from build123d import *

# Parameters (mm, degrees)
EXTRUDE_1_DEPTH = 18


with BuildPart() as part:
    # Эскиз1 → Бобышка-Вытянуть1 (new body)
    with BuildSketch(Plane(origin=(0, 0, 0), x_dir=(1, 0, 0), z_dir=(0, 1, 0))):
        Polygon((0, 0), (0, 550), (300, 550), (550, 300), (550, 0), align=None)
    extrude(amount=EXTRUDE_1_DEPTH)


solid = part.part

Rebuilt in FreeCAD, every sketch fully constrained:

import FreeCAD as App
import Part
import Sketcher

V = App.Vector
Q = App.Units.Quantity


def add_polygon(sketch, points):
    """Adds a closed chain of lines whose ends are joined by coincident constraints."""
    first, n = sketch.GeometryCount, len(points)
    for a, b in zip(points, points[1:] + points[:1]):
        sketch.addGeometry(Part.LineSegment(App.Vector(*a, 0), App.Vector(*b, 0)), False)
    for i in range(n):
        sketch.addConstraint(Sketcher.Constraint("Coincident", first + i, 2, first + (i + 1) % n, 1))

doc = App.newDocument("Part")
params = doc.addObject("Spreadsheet::Sheet", "Params")
for row, (alias, value) in enumerate([
    ("sketch1_width", "550 mm"),
    ("sketch1_width2", "300 mm"),
    ("pad1_length", "18 mm"),
], start=1):
    params.set(f"A{row}", alias)
    params.set(f"B{row}", "=" + value)
    params.setAlias(f"B{row}", alias)

body = doc.addObject("PartDesign::Body", "Body")

sketch1 = body.newObject("Sketcher::SketchObject", "Sketch")
sketch1.AttachmentSupport = (doc.getObject("XZ_Plane"), [""])
sketch1.MapMode = "FlatFace"
add_polygon(sketch1, [(0, -550), (0, 0), (550, 0), (550, -300), (300, -550)])
sketch1.addConstraint(Sketcher.Constraint("Vertical", 0))
sketch1.addConstraint(Sketcher.Constraint("Horizontal", 1))
sketch1.addConstraint(Sketcher.Constraint("Vertical", 2))
sketch1.addConstraint(Sketcher.Constraint("Horizontal", 4))
sketch1.addConstraint(Sketcher.Constraint("Coincident", 0, 2, -1, 1))
sketch1.addConstraint(Sketcher.Constraint("Equal", 1, 0))
sketch1.addConstraint(Sketcher.Constraint("Equal", 4, 2))
sketch1.addConstraint(Sketcher.Constraint("DistanceX", 1, 1, 1, 2, Q("550 mm")))
sketch1.addConstraint(Sketcher.Constraint("DistanceX", 4, 2, 4, 1, Q("300 mm")))
sketch1.setExpression("Constraints[12]", "Params.sketch1_width")
sketch1.setExpression("Constraints[13]", "Params.sketch1_width2")
pad1 = body.newObject("PartDesign::Pad", "Pad")
pad1.Profile = sketch1
pad1.setExpression("Length", "Params.pad1_length")
pad1.Reversed = True

doc.recompute()
